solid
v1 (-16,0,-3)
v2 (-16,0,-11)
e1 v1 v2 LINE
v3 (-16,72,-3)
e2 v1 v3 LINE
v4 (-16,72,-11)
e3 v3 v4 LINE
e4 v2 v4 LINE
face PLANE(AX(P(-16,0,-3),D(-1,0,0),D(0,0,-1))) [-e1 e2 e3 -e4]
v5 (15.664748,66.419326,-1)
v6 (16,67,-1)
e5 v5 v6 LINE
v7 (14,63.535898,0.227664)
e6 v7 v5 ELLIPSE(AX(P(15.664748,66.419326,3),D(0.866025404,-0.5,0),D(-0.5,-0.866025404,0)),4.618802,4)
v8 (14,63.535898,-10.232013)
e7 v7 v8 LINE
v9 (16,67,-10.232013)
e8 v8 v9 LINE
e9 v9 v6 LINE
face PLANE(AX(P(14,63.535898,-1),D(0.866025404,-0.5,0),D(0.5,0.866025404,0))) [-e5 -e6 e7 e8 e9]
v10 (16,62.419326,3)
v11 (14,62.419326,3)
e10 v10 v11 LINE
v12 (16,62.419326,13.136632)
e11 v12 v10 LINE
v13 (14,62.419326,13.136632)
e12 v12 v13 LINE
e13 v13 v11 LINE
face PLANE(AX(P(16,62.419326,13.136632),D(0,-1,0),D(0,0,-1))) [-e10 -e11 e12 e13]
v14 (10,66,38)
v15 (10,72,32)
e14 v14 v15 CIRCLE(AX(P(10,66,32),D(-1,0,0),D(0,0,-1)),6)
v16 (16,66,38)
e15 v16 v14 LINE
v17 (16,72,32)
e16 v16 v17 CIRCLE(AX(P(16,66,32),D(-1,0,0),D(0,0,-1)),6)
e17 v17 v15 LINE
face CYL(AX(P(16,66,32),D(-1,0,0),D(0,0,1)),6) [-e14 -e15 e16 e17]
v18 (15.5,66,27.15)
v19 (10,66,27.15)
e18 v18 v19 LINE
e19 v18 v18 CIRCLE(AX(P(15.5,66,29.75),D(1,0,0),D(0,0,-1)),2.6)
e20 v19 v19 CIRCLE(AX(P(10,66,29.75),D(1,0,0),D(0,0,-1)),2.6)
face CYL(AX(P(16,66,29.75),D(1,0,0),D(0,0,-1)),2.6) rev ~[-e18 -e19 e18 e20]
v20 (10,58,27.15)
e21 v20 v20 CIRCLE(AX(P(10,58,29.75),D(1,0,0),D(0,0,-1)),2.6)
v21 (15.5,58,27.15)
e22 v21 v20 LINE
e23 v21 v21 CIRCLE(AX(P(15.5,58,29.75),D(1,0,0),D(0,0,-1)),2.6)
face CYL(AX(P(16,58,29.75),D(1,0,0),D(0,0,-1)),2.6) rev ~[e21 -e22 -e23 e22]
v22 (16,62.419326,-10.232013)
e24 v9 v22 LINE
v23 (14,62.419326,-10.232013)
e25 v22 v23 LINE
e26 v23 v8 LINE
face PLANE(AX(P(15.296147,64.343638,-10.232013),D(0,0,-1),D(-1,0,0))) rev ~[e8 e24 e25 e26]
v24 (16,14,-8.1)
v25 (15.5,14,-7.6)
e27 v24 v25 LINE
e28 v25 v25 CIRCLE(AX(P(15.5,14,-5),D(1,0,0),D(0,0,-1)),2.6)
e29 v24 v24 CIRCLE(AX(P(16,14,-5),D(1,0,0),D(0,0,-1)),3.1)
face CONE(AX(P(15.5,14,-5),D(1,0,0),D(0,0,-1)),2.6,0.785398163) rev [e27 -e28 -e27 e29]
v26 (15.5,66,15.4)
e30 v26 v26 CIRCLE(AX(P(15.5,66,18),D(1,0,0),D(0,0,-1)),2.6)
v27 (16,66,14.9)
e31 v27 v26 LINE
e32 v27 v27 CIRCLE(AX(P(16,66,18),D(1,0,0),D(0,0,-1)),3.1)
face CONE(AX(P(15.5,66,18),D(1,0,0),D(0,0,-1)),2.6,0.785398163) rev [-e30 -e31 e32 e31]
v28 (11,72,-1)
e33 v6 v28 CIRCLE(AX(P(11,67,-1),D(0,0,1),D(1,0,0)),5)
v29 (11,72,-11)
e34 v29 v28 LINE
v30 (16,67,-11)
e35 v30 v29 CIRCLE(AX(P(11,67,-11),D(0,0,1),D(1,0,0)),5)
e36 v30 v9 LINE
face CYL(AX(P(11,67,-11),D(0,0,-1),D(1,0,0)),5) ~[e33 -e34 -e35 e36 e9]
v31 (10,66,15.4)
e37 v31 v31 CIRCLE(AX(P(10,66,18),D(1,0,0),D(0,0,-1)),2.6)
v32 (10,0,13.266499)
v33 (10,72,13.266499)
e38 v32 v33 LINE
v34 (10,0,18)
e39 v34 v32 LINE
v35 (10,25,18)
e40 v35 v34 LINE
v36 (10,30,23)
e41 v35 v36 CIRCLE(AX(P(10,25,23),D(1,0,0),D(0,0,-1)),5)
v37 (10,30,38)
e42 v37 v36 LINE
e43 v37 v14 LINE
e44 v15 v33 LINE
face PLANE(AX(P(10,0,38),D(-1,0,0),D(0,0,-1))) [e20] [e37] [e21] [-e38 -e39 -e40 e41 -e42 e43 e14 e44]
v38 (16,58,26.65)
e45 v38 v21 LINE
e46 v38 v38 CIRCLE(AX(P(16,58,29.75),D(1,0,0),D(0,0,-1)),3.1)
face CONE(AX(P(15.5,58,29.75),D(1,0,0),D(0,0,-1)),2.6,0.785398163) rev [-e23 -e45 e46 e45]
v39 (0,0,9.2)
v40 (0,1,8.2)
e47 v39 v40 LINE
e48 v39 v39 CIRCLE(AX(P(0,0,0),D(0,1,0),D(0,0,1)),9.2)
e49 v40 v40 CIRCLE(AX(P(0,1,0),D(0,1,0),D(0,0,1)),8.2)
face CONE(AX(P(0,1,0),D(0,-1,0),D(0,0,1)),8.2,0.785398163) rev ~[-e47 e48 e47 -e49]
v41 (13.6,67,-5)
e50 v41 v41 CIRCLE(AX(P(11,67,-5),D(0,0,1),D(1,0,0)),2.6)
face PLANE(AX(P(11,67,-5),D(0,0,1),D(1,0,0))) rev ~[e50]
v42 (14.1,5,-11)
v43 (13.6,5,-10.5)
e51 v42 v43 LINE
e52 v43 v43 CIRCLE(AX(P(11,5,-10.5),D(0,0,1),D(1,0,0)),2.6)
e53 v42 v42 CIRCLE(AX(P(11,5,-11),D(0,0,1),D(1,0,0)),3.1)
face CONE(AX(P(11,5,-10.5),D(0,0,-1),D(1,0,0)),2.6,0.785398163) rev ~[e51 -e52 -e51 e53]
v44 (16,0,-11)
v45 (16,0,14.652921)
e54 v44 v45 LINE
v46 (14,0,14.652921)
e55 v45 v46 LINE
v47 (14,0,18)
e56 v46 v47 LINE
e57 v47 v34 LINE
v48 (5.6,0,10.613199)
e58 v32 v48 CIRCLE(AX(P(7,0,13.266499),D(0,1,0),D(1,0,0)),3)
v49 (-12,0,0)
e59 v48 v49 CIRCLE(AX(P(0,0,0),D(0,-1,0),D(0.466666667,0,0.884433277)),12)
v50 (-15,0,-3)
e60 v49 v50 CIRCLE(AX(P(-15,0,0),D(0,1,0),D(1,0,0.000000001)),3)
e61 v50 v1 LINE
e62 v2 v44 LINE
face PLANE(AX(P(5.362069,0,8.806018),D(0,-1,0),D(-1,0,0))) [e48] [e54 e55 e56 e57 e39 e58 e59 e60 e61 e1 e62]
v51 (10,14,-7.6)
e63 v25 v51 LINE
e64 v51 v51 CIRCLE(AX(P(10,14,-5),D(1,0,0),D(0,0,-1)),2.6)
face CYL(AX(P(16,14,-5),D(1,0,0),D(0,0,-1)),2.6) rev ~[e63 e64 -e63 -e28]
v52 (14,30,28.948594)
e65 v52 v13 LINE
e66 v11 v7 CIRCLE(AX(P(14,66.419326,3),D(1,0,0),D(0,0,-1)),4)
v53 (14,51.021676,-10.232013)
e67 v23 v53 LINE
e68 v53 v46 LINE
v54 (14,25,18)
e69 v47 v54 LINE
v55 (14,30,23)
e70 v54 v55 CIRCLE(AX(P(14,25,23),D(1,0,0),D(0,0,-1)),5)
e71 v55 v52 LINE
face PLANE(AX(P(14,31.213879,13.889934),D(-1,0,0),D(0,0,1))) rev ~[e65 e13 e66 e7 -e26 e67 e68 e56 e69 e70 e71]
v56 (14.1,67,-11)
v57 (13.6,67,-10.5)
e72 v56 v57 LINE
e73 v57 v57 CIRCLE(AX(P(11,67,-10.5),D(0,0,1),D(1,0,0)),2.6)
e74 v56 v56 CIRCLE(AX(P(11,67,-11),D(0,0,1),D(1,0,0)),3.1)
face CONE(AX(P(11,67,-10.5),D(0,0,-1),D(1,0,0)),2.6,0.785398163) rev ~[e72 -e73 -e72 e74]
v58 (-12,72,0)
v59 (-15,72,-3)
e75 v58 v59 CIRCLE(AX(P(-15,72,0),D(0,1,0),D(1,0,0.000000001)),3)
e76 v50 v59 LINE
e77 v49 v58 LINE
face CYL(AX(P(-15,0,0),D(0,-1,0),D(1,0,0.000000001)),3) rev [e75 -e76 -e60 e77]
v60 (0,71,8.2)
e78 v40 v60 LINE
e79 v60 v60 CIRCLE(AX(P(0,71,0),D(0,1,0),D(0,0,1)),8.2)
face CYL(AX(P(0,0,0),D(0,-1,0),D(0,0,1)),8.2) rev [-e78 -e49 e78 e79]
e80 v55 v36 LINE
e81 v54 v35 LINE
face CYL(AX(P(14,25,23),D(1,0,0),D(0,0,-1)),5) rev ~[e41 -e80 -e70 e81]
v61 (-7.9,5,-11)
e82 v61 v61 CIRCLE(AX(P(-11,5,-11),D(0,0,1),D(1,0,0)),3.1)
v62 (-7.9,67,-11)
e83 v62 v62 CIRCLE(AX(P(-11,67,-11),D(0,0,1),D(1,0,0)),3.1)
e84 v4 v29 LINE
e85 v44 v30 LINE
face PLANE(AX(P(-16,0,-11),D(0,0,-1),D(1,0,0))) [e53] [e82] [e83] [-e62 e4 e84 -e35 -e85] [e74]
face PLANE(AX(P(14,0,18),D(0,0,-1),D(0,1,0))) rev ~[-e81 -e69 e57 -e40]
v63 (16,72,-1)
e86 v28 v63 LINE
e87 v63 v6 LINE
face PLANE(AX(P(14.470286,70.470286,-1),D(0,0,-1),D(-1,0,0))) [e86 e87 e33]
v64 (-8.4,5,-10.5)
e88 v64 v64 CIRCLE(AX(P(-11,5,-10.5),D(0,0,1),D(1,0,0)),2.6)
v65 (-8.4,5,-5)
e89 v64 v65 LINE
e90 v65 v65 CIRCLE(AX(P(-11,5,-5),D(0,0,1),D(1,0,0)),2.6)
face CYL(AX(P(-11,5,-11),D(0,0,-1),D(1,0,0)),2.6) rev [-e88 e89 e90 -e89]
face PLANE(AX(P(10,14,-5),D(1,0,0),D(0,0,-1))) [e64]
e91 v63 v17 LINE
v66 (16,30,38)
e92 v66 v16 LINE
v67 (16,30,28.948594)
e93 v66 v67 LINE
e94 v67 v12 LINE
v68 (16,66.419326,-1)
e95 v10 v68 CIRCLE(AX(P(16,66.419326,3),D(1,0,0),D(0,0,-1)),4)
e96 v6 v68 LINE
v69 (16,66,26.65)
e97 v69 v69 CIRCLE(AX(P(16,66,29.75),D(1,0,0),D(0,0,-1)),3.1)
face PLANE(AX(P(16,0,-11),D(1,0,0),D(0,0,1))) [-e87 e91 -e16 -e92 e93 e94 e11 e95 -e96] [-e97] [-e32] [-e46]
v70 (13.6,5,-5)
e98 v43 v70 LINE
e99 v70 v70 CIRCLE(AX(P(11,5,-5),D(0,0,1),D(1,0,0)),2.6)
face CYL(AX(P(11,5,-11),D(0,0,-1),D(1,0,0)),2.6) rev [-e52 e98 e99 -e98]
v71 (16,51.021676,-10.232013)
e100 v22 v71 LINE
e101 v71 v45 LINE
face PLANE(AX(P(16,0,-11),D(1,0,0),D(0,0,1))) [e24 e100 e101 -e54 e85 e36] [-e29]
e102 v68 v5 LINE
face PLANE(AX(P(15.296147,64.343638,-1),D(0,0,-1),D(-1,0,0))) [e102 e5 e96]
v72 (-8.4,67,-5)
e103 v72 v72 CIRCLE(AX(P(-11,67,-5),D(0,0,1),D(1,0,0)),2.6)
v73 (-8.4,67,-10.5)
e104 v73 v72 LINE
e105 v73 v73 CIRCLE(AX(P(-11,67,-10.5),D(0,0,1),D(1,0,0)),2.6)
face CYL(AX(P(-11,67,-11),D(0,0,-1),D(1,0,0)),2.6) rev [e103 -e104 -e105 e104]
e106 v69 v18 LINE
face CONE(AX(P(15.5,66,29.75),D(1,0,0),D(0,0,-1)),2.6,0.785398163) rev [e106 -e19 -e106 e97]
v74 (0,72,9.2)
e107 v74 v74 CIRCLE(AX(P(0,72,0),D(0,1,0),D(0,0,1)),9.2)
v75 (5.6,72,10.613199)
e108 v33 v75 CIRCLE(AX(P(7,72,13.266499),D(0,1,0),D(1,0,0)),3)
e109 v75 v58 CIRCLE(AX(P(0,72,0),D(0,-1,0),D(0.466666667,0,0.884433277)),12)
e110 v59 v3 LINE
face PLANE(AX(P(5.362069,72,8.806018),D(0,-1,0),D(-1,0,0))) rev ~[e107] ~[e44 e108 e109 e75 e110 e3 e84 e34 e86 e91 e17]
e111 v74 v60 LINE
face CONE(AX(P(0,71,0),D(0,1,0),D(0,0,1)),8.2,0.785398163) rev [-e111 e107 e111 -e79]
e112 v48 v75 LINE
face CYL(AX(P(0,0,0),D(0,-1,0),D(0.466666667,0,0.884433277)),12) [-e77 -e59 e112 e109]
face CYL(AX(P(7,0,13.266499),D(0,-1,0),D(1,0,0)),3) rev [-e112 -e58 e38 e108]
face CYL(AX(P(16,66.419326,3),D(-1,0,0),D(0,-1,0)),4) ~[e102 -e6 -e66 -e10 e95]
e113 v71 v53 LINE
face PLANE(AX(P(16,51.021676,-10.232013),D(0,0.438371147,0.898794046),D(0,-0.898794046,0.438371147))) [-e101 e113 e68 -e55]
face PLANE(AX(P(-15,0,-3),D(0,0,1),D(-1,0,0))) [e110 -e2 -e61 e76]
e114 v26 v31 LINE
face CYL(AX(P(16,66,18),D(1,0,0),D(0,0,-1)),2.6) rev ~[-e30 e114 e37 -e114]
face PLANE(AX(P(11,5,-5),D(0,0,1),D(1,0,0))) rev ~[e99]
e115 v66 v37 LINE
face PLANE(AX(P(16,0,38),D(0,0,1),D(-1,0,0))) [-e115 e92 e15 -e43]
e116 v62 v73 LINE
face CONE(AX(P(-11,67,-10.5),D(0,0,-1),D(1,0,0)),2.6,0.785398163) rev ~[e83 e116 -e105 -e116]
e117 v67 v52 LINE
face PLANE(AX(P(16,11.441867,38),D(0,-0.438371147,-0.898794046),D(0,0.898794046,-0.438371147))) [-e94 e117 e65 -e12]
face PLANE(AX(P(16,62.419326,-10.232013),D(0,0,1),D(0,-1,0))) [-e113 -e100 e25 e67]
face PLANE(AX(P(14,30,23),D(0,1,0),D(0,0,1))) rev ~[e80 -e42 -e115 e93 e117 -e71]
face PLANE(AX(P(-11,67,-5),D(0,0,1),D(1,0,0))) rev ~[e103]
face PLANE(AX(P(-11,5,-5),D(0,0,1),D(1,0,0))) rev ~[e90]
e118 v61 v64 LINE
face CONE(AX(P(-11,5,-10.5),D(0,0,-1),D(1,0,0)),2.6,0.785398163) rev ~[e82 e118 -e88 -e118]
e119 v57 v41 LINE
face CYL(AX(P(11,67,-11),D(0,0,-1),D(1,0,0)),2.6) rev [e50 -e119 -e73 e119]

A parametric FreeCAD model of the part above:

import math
import FreeCAD as App
import Part
import Sketcher
from FreeCAD import Vector
Q = App.Units.Quantity


def edges_at(feature, points):
    """Names of the edges that pass closest to the given points."""
    edges = feature.Shape.Edges
    near = lambda p: min(range(len(edges)), key=lambda i: edges[i].distToShape(Part.Vertex(*p))[0])
    return sorted({f"Edge{near(p) + 1}" for p in points})


def add_polygon(sketch, points):
    """Adds a closed chain of lines whose ends are joined by coincident constraints."""
    first, n = sketch.GeometryCount, len(points)
    for a, b in zip(points, points[1:] + points[:1]):
        sketch.addGeometry(Part.LineSegment(App.Vector(*a, 0), App.Vector(*b, 0)), False)
    for i in range(n):
        sketch.addConstraint(Sketcher.Constraint("Coincident", first + i, 2, first + (i + 1) % n, 1))

doc = App.newDocument("Part")
body = doc.addObject("PartDesign::Body", "Body")

sketch1 = doc.addObject("Sketcher::SketchObject", "Sketch")
body.addObject(sketch1)
sketch1.AttachmentSupport = (doc.XZ_Plane, [""])
sketch1.MapMode = "FlatFace"
sketch1.addGeometry([
    Part.LineSegment(Vector(16, -11, 0), Vector(-16, -11, 0)),
    Part.LineSegment(Vector(-16, -11, 0), Vector(-16, -3, 0)),
    Part.LineSegment(Vector(-16, -3, 0), Vector(-15, -3, 0)),
    Part.ArcOfCircle(Part.Circle(Vector(-15, 0, 0), Vector(0, 0, 1), 3), math.radians(-90), math.radians(0)),
    Part.ArcOfCircle(Part.Circle(Vector(0, 0, 0), Vector(0, 0, 1), 12), math.radians(62.181861), math.radians(180)),
    Part.ArcOfCircle(Part.Circle(Vector(7, 13.266499, 0), Vector(0, 0, 1), 3), math.radians(-117.818139), math.radians(0)),
    Part.LineSegment(Vector(10, 13.266499, 0), Vector(10, 38, 0)),
    Part.LineSegment(Vector(10, 38, 0), Vector(16, 38, 0)),
    Part.LineSegment(Vector(16, 38, 0), Vector(16, -11, 0)),
    Part.Circle(Vector(0, 0, 0), Vector(0, 0, 1), 8.2),
], False)
sketch1.addConstraint([
    Sketcher.Constraint("Coincident", 0, 2, 1, 1),
    Sketcher.Constraint("Coincident", 1, 2, 2, 1),
    Sketcher.Constraint("Tangent", 2, 2, 3, 1),
    Sketcher.Constraint("Tangent", 3, 2, 4, 2),
    Sketcher.Constraint("Tangent", 4, 1, 5, 1),
    Sketcher.Constraint("Tangent", 5, 2, 6, 1),
    Sketcher.Constraint("Coincident", 6, 2, 7, 1),
    Sketcher.Constraint("Coincident", 7, 2, 8, 1),
    Sketcher.Constraint("Coincident", 8, 2, 0, 1),
    Sketcher.Constraint("Horizontal", 0),
    Sketcher.Constraint("Vertical", 1),
    Sketcher.Constraint("Horizontal", 2),
    Sketcher.Constraint("Vertical", 6),
    Sketcher.Constraint("Horizontal", 7),
    Sketcher.Constraint("Vertical", 8),
    Sketcher.Constraint("Coincident", 4, 3, -1, 1),
    Sketcher.Constraint("Coincident", 9, 3, -1, 1),
    Sketcher.Constraint("Equal", 3, 5),
    Sketcher.Constraint("PointOnObject", 3, 3, -1),
    Sketcher.Constraint("Radius", 3, 3.0),
    Sketcher.Constraint("Radius", 4, 12.0),
    Sketcher.Constraint("Diameter", 9, 16.4),
    Sketcher.Constraint("DistanceX", 0, 2, 0, 1, 32.0),
    Sketcher.Constraint("DistanceX", 2, 1, 2, 2, 1.0),
    Sketcher.Constraint("DistanceX", 7, 1, 7, 2, 6.0),
    Sketcher.Constraint("DistanceY", 1, 1, 1, 2, 8.0),
    Sketcher.Constraint("DistanceY", 8, 2, 8, 1, 49.0),
])
pad1 = doc.addObject("PartDesign::Pad", "Pad")
body.addObject(pad1)
pad1.Profile = sketch1
pad1.Length = 72
pad1.Reversed = True

sketch2 = doc.addObject("Sketcher::SketchObject", "Sketch001")
body.addObject(sketch2)
sketch2.AttachmentSupport = (doc.XY_Plane, [""])
sketch2.MapMode = "FlatFace"
sketch2.AttachmentOffset = App.Placement(Vector(0, 0, -11), App.Rotation())
sketch2.addGeometry([
    Part.Circle(Vector(-11, 67, 0), Vector(0, 0, 1), 2.6),
    Part.Circle(Vector(-11, 5, 0), Vector(0, 0, 1), 2.6),
    Part.Circle(Vector(11, 67, 0), Vector(0, 0, 1), 2.6),
    Part.Circle(Vector(11, 5, 0), Vector(0, 0, 1), 2.6),
], False)
sketch2.addConstraint([
    Sketcher.Constraint("Equal", 0, 1),
    Sketcher.Constraint("Equal", 1, 2),
    Sketcher.Constraint("Equal", 2, 3),
    Sketcher.Constraint("Symmetric", 0, 3, 2, 3, -2),
    Sketcher.Constraint("Symmetric", 1, 3, 3, 3, -2),
    Sketcher.Constraint("Vertical", 0, 3, 1, 3),
    Sketcher.Constraint("Diameter", 0, 5.2),
    Sketcher.Constraint("DistanceX", 0, 3, -1, 1, 11.0),
    Sketcher.Constraint("DistanceY", -1, 1, 0, 3, 67.0),
    Sketcher.Constraint("DistanceY", -1, 1, 1, 3, 5.0),
])
pocket1 = doc.addObject("PartDesign::Pocket", "Pocket")
body.addObject(pocket1)
pocket1.Profile = sketch2
pocket1.Length = 6
pocket1.Reversed = True
doc.recompute()

chamfer = doc.addObject("PartDesign::Chamfer", "Chamfer")
body.addObject(chamfer)
chamfer.Base = (pocket1, edges_at(pocket1, [
    (-13.6, 67, -11),
    (-13.6, 5, -11),
    (8.4, 67, -11),
    (8.4, 5, -11),
]))
chamfer.Size = 0.5
doc.recompute()

chamfer2 = doc.addObject("PartDesign::Chamfer", "Chamfer001")
body.addObject(chamfer2)
chamfer2.Base = (chamfer, edges_at(chamfer, [(0, 0, -8.2), (0, 72, -8.2)]))
chamfer2.Size = 1

sketch3 = doc.addObject("Sketcher::SketchObject", "Sketch002")
body.addObject(sketch3)
sketch3.AttachmentSupport = (doc.YZ_Plane, [""])
sketch3.MapMode = "FlatFace"
sketch3.AttachmentOffset = App.Placement(Vector(0, 0, 16), App.Rotation())
sketch3.addGeometry([
    Part.Circle(Vector(66, 29.75, 0), Vector(0, 0, 1), 2.6),
    Part.Circle(Vector(58, 29.75, 0), Vector(0, 0, 1), 2.6),
], False)
sketch3.addConstraint([
    Sketcher.Constraint("Equal", 0, 1),
    Sketcher.Constraint("Horizontal", 0, 3, 1, 3),
    Sketcher.Constraint("Diameter", 0, 5.2),
    Sketcher.Constraint("DistanceX", -1, 1, 0, 3, 66.0),
    Sketcher.Constraint("DistanceX", -1, 1, 1, 3, 58.0),
    Sketcher.Constraint("DistanceY", -1, 1, 0, 3, 29.75),
])
pocket2 = doc.addObject("PartDesign::Pocket", "Pocket001")
body.addObject(pocket2)
pocket2.Profile = sketch3
pocket2.Type = "ThroughAll"

sketch4 = doc.addObject("Sketcher::SketchObject", "Sketch003")
body.addObject(sketch4)
sketch4.AttachmentSupport = (doc.XY_Plane, [""])
sketch4.MapMode = "FlatFace"
sketch4.AttachmentOffset = App.Placement(Vector(0, 0, -11), App.Rotation())
sketch4.addGeometry([
    Part.LineSegment(Vector(11, 72, 0), Vector(16, 72, 0)),
    Part.LineSegment(Vector(16, 72, 0), Vector(16, 67, 0)),
    Part.ArcOfCircle(Part.Circle(Vector(11, 67, 0), Vector(0, 0, 1), 5), math.radians(0), math.radians(90)),
], False)
sketch4.addConstraint([
    Sketcher.Constraint("Coincident", 0, 2, 1, 1),
    Sketcher.Constraint("Tangent", 1, 2, 2, 1),
    Sketcher.Constraint("Tangent", 2, 2, 0, 1),
    Sketcher.Constraint("Horizontal", 0),
    Sketcher.Constraint("Vertical", 1),
    Sketcher.Constraint("Radius", 2, 5.0),
    Sketcher.Constraint("DistanceX", -1, 1, 2, 3, 11.0),
    Sketcher.Constraint("DistanceY", -1, 1, 2, 3, 67.0),
])
pocket3 = doc.addObject("PartDesign::Pocket", "Pocket002")
body.addObject(pocket3)
pocket3.Profile = sketch4
pocket3.Length = 10
pocket3.Reversed = True

sketch5 = doc.addObject("Sketcher::SketchObject", "Sketch004")
body.addObject(sketch5)
sketch5.AttachmentSupport = (doc.YZ_Plane, [""])
sketch5.MapMode = "FlatFace"
sketch5.AttachmentOffset = App.Placement(Vector(0, 0, 16), App.Rotation())
add_polygon(sketch5, [(0, 14.652921), (51.021676, -10.232013), (62.419326, -10.232013), (62.419326, 13.136632), (11.441867, 38), (0, 38)])
sketch5.addConstraint([
    Sketcher.Constraint("Horizontal", 1),
    Sketcher.Constraint("Vertical", 2),
    Sketcher.Constraint("Horizontal", 4),
    Sketcher.Constraint("Vertical", 5),
    Sketcher.Constraint("PointOnObject", 4, 2, -2),
    Sketcher.Constraint("Parallel", 0, 3),
    Sketcher.Constraint("Angle", 0, Q("-26 deg")),
    Sketcher.Constraint("DistanceY", -1, 1, 3, 2, 38.0),
    Sketcher.Constraint("DistanceX", 1, 1, 1, 2, 11.39765),
    Sketcher.Constraint("DistanceY", 5, 2, 5, 1, 23.347079),
    Sketcher.Constraint("Distance", 3, 56.717619),
    Sketcher.Constraint("DistanceX", 4, 2, 4, 1, 11.441867),
])
pocket4 = doc.addObject("PartDesign::Pocket", "Pocket003")
body.addObject(pocket4)
pocket4.Profile = sketch5
pocket4.Length = 2

sketch6 = doc.addObject("Sketcher::SketchObject", "Sketch005")
body.addObject(sketch6)
sketch6.AttachmentSupport = (doc.YZ_Plane, [""])
sketch6.MapMode = "FlatFace"
sketch6.AttachmentOffset = App.Placement(Vector(0, 0, 14), App.Rotation())
sketch6.addGeometry([
    Part.LineSegment(Vector(0, 38, 0), Vector(0, 18, 0)),
    Part.LineSegment(Vector(0, 18, 0), Vector(25, 18, 0)),
    Part.ArcOfCircle(Part.Circle(Vector(25, 23, 0), Vector(0, 0, 1), 5), math.radians(-90), math.radians(0)),
    Part.LineSegment(Vector(30, 23, 0), Vector(30, 38, 0)),
    Part.LineSegment(Vector(30, 38, 0), Vector(0, 38, 0)),
], False)
sketch6.addConstraint([
    Sketcher.Constraint("Coincident", 0, 2, 1, 1),
    Sketcher.Constraint("Tangent", 1, 2, 2, 1),
    Sketcher.Constraint("Tangent", 2, 2, 3, 1),
    Sketcher.Constraint("Coincident", 3, 2, 4, 1),
    Sketcher.Constraint("Coincident", 4, 2, 0, 1),
    Sketcher.Constraint("Vertical", 0),
    Sketcher.Constraint("Horizontal", 1),
    Sketcher.Constraint("Vertical", 3),
    Sketcher.Constraint("Horizontal", 4),
    Sketcher.Constraint("PointOnObject", 0, 2, -2),
    Sketcher.Constraint("Radius", 2, 5.0),
    Sketcher.Constraint("DistanceX", 1, 1, 1, 2, 25.0),
    Sketcher.Constraint("DistanceY", 0, 2, 0, 1, 20.0),
    Sketcher.Constraint("DistanceY", -1, 1, 2, 3, 23.0),
])
pocket5 = doc.addObject("PartDesign::Pocket", "Pocket004")
body.addObject(pocket5)
pocket5.Profile = sketch6
pocket5.Type = "ThroughAll"
pocket5.Midplane = True

sketch7 = doc.addObject("Sketcher::SketchObject", "Sketch006")
body.addObject(sketch7)
sketch7.AttachmentSupport = (doc.XY_Plane, [""])
sketch7.MapMode = "FlatFace"
sketch7.AttachmentOffset = App.Placement(Vector(0, 0, -1), App.Rotation())
add_polygon(sketch7, [(16, 67), (16, 62.419326), (14, 62.419326), (14, 63.535898)])
sketch7.addConstraint([
    Sketcher.Constraint("Vertical", 0),
    Sketcher.Constraint("Horizontal", 1),
    Sketcher.Constraint("Vertical", 2),
    Sketcher.Constraint("DistanceX", 1, 2, 1, 1, 2.0),
    Sketcher.Constraint("Angle", 3, Q("60 deg")),
    Sketcher.Constraint("DistanceX", -1, 1, 0, 2, 16.0),
    Sketcher.Constraint("DistanceY", -1, 1, 3, 2, 67.0),
    Sketcher.Constraint("DistanceY", 0, 2, 0, 1, 4.580674),
])
pocket6 = doc.addObject("PartDesign::Pocket", "Pocket005")
body.addObject(pocket6)
pocket6.Profile = sketch7
pocket6.Length = 9.232013
doc.recompute()

fillet = doc.addObject("PartDesign::Fillet", "Fillet")
body.addObject(fillet)
fillet.Base = (pocket6, edges_at(pocket6, [(15, 62.419, -1)]))
fillet.Radius = 4
doc.recompute()

fillet2 = doc.addObject("PartDesign::Fillet", "Fillet001")
body.addObject(fillet2)
fillet2.Base = (fillet, edges_at(fillet, [(13, 72, 38)]))
fillet2.Radius = 6

sketch8 = doc.addObject("Sketcher::SketchObject", "Sketch007")
body.addObject(sketch8)
sketch8.AttachmentSupport = (doc.YZ_Plane, [""])
sketch8.MapMode = "FlatFace"
sketch8.AttachmentOffset = App.Placement(Vector(0, 0, 16), App.Rotation())
sketch8.addGeometry([
    Part.Circle(Vector(66, 18, 0), Vector(0, 0, 1), 2.6),
    Part.Circle(Vector(14, -5, 0), Vector(0, 0, 1), 2.6),
], False)
sketch8.addConstraint([
    Sketcher.Constraint("Equal", 0, 1),
    Sketcher.Constraint("Diameter", 0, 5.2),
    Sketcher.Constraint("DistanceX", -1, 1, 0, 3, 66.0),
    Sketcher.Constraint("DistanceY", -1, 1, 0, 3, 18.0),
    Sketcher.Constraint("DistanceX", -1, 1, 1, 3, 14.0),
    Sketcher.Constraint("DistanceY", 1, 3, -1, 1, 5.0),
])
pocket7 = doc.addObject("PartDesign::Pocket", "Pocket006")
body.addObject(pocket7)
pocket7.Profile = sketch8
pocket7.Length = 6
doc.recompute()

chamfer3 = doc.addObject("PartDesign::Chamfer", "Chamfer002")
body.addObject(chamfer3)
chamfer3.Base = (pocket7, edges_at(pocket7, [
    (16, 66, 20.6),
    (16, 14, -2.4),
    (16, 66, 32.35),
    (16, 58, 32.35),
]))
chamfer3.Size = 0.5

doc.recompute()
